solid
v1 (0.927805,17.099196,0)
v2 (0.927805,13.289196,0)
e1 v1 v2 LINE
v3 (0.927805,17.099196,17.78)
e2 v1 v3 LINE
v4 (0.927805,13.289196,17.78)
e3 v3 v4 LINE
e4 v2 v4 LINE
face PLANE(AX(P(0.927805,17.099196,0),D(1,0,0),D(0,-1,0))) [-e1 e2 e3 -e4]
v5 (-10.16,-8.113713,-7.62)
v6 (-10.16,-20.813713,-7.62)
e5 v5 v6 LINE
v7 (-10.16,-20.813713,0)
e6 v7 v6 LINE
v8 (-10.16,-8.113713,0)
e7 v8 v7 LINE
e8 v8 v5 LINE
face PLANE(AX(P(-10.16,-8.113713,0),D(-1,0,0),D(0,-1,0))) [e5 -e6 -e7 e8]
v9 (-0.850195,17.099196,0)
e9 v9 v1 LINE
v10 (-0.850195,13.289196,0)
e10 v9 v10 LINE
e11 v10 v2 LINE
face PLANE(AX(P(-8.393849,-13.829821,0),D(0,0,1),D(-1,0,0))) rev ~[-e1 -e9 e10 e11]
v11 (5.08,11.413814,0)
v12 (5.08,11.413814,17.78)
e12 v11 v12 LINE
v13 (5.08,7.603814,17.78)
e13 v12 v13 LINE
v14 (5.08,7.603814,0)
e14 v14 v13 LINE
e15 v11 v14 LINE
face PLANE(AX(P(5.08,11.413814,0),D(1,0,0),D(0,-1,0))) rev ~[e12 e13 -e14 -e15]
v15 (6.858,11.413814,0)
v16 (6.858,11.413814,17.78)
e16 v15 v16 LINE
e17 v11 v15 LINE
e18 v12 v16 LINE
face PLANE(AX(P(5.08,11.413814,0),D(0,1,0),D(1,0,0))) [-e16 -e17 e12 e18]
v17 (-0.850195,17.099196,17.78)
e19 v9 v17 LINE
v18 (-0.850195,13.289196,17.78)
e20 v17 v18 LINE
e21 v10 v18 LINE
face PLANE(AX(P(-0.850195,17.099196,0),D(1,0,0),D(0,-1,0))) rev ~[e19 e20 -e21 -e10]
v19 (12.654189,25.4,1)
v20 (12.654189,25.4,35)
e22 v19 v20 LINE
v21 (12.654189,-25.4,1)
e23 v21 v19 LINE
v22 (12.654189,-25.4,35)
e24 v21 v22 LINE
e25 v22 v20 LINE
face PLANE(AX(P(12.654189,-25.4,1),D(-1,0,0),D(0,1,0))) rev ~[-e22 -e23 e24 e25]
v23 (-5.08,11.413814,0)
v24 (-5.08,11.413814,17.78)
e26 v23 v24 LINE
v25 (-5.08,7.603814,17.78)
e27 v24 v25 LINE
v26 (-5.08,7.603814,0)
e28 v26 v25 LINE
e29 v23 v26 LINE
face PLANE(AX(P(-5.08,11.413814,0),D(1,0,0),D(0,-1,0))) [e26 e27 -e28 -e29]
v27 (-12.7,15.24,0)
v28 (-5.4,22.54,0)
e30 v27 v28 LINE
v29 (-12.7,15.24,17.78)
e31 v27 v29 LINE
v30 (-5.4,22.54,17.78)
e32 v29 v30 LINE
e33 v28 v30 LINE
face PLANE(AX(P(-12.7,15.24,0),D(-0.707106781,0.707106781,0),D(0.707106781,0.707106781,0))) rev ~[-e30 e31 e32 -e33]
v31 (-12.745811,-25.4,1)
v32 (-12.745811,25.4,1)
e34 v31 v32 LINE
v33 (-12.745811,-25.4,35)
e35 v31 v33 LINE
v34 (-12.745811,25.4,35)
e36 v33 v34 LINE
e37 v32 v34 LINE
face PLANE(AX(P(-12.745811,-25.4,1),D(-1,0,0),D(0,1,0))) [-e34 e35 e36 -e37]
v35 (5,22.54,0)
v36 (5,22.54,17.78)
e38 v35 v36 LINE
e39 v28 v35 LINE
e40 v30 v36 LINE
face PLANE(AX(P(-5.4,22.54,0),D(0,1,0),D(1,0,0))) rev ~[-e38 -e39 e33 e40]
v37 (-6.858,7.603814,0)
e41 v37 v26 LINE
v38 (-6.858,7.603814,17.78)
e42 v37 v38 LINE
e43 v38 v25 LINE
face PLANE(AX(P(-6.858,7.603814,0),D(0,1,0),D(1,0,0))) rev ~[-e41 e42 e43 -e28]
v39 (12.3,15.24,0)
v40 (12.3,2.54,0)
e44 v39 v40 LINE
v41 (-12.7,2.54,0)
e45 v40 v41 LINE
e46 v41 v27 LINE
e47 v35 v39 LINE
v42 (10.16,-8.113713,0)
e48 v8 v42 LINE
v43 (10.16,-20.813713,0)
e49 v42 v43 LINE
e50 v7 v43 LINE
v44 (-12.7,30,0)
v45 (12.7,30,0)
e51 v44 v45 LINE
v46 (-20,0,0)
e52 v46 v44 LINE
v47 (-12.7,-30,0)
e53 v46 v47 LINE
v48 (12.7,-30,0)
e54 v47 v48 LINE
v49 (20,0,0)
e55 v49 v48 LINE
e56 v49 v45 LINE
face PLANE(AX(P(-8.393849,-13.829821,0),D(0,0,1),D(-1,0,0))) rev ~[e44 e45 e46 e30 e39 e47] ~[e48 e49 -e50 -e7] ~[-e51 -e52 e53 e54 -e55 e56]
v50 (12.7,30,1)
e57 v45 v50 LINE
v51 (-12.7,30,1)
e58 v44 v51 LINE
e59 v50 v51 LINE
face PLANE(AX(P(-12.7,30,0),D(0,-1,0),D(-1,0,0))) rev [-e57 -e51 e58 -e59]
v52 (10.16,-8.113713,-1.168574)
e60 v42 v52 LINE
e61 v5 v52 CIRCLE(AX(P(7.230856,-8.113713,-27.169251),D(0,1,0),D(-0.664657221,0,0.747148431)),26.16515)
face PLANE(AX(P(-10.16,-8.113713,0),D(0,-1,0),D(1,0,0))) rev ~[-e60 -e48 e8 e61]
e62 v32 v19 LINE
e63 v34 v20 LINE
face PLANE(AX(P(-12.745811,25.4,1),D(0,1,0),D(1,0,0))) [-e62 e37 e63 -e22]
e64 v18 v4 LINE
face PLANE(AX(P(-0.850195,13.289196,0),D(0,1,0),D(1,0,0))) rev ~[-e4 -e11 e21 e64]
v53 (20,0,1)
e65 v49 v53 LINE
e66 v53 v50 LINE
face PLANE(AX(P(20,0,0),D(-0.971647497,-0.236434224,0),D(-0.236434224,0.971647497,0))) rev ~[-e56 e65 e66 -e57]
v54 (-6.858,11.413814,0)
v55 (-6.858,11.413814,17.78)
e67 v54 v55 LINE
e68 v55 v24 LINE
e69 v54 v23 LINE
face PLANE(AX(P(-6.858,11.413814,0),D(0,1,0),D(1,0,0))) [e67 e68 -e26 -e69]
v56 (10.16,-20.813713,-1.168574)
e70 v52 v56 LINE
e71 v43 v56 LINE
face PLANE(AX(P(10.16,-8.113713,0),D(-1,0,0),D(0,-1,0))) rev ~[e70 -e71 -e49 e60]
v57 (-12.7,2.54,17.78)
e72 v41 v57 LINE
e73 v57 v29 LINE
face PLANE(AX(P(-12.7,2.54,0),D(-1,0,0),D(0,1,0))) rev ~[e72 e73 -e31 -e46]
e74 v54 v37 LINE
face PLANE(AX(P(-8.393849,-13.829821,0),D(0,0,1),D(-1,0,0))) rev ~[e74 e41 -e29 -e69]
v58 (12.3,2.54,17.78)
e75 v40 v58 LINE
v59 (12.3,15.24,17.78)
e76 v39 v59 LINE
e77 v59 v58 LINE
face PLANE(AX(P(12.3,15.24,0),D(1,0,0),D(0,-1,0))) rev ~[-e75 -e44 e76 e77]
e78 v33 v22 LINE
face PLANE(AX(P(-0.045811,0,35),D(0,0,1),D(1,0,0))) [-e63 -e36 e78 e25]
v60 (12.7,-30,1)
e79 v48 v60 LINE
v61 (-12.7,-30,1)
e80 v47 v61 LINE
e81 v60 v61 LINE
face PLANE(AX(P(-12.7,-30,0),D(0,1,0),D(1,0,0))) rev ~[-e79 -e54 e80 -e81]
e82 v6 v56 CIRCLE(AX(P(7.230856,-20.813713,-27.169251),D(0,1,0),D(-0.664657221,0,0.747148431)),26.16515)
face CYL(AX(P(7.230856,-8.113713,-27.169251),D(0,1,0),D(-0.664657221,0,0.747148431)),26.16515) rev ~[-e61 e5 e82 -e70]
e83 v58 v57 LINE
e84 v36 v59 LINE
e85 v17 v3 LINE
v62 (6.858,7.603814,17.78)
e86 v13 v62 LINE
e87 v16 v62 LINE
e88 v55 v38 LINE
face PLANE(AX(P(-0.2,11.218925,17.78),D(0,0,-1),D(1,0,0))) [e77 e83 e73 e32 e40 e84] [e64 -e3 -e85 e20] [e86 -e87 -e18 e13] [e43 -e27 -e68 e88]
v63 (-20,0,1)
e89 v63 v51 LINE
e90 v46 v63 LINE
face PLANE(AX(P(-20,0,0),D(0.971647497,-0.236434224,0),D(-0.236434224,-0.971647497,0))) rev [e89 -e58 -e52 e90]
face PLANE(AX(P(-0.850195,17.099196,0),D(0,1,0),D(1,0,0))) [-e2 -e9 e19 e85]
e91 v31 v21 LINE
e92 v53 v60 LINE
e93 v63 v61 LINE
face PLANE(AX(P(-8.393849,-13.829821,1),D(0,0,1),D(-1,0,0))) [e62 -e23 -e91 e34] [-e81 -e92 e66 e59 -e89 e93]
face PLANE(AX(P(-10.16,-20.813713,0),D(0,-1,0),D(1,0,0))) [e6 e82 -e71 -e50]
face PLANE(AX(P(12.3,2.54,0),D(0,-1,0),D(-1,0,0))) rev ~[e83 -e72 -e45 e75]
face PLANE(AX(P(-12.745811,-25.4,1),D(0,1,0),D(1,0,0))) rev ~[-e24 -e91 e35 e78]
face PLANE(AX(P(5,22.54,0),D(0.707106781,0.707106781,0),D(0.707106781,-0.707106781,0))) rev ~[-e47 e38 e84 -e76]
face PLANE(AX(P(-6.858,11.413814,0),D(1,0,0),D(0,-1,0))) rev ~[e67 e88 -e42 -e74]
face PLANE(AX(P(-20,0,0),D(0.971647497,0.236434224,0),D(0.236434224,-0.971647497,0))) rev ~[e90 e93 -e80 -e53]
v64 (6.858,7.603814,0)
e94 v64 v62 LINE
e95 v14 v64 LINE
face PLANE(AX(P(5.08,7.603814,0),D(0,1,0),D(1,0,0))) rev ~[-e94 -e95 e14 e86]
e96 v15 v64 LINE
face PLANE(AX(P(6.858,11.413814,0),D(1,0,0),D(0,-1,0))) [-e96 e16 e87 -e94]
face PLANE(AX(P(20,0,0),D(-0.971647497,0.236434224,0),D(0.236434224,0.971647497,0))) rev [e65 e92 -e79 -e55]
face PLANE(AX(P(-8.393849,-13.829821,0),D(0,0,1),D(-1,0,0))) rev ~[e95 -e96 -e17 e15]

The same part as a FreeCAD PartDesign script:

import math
import FreeCAD as App
import Part
import Sketcher
from FreeCAD import Vector
Q = App.Units.Quantity

doc = App.newDocument("Part")
body = doc.addObject("PartDesign::Body", "Body")

sketch1 = body.newObject("Sketcher::SketchObject", "Sketch")
sketch1.AttachmentSupport = (doc.getObject("XY_Plane"), [""])
sketch1.MapMode = "FlatFace"
sketch1.addGeometry(Part.LineSegment(Vector(12.7, 30, 0), Vector(0, 30, 0)), False)
sketch1.addGeometry(Part.LineSegment(Vector(0, 30, 0), Vector(0, 0, 0)), False)
sketch1.addGeometry(Part.LineSegment(Vector(0, 0, 0), Vector(20, 0, 0)), False)
sketch1.addGeometry(Part.LineSegment(Vector(20, 0, 0), Vector(12.7, 30, 0)), False)
sketch1.addConstraint(Sketcher.Constraint("Coincident", 0, 2, 1, 1))
sketch1.addConstraint(Sketcher.Constraint("Coincident", 1, 2, 2, 1))
sketch1.addConstraint(Sketcher.Constraint("Coincident", 2, 2, 3, 1))
sketch1.addConstraint(Sketcher.Constraint("Coincident", 3, 2, 0, 1))
sketch1.addConstraint(Sketcher.Constraint("Horizontal", 0))
sketch1.addConstraint(Sketcher.Constraint("Vertical", 1))
sketch1.addConstraint(Sketcher.Constraint("Horizontal", 2))
sketch1.addConstraint(Sketcher.Constraint("Coincident", 1, 2, -1, 1))
sketch1.addConstraint(Sketcher.Constraint("DistanceX", 0, 2, 0, 1, Q("0.5 in")))
sketch1.addConstraint(Sketcher.Constraint("DistanceX", 2, 1, 2, 2, Q("20 mm")))
sketch1.addConstraint(Sketcher.Constraint("DistanceY", 1, 2, 1, 1, Q("30 mm")))
pad1 = body.newObject("PartDesign::Pad", "Pad")
pad1.Profile = sketch1
pad1.Length = 1
body2 = doc.addObject("PartDesign::Body", "Body001")
doc.recompute()

body2.BaseFeature = body
doc.recompute()

mirroring = doc.addObject("Part::Mirroring", "Mirroring")
mirroring.Source = body
mirroring.Base = Vector(0, 0, 0)
mirroring.Normal = Vector(0, -1, 0)
body3 = doc.addObject("PartDesign::Body", "Body002")
body3.BaseFeature = mirroring
boolean = body2.newObject("PartDesign::Boolean", "Boolean")
boolean.Type = "Fuse"
boolean.addObjects([body3])
doc.recompute()
body4 = doc.addObject("PartDesign::Body", "Body003")
doc.recompute()

body4.BaseFeature = body2
doc.recompute()

mirroring2 = doc.addObject("Part::Mirroring", "Mirroring001")
mirroring2.Source = body2
mirroring2.Base = Vector(0, 0, 0)
mirroring2.Normal = Vector(1, 0, 0)
body5 = doc.addObject("PartDesign::Body", "Body004")
body5.BaseFeature = mirroring2
boolean2 = body4.newObject("PartDesign::Boolean", "Boolean001")
boolean2.Type = "Fuse"
boolean2.addObjects([body5])
doc.recompute()

sketch2 = body4.newObject("Sketcher::SketchObject", "Sketch001")
sketch2.AttachmentSupport = (doc.getObject("XY_Plane003"), [""])
sketch2.MapMode = "FlatFace"
sketch2.AttachmentOffset = App.Placement(Vector(0, 0, 1), App.Rotation())
sketch2.addGeometry(Part.LineSegment(Vector(-12.745811, 25.4, 0), Vector(-12.745811, -25.4, 0)), False)
sketch2.addGeometry(Part.LineSegment(Vector(-12.745811, -25.4, 0), Vector(12.654189, -25.4, 0)), False)
sketch2.addGeometry(Part.LineSegment(Vector(12.654189, -25.4, 0), Vector(12.654189, 25.4, 0)), False)
sketch2.addGeometry(Part.LineSegment(Vector(12.654189, 25.4, 0), Vector(-12.745811, 25.4, 0)), False)
sketch2.addConstraint(Sketcher.Constraint("Coincident", 0, 2, 1, 1))
sketch2.addConstraint(Sketcher.Constraint("Coincident", 1, 2, 2, 1))
sketch2.addConstraint(Sketcher.Constraint("Coincident", 2, 2, 3, 1))
sketch2.addConstraint(Sketcher.Constraint("Coincident", 3, 2, 0, 1))
sketch2.addConstraint(Sketcher.Constraint("Vertical", 0))
sketch2.addConstraint(Sketcher.Constraint("Horizontal", 1))
sketch2.addConstraint(Sketcher.Constraint("Vertical", 2))
sketch2.addConstraint(Sketcher.Constraint("Horizontal", 3))
sketch2.addConstraint(Sketcher.Constraint("DistanceX", 1, 1, 1, 2, Q("1 in")))
sketch2.addConstraint(Sketcher.Constraint("DistanceY", 0, 2, 0, 1, Q("2 in")))
sketch2.addConstraint(Sketcher.Constraint("DistanceY", 0, 2, -1, 1, Q("1 in")))
sketch2.addConstraint(Sketcher.Constraint("DistanceX", 0, 2, -1, 1, Q("12.745811 mm")))
pad2 = body4.newObject("PartDesign::Pad", "Pad001")
pad2.Profile = sketch2
pad2.Length = 34

sketch3 = body4.newObject("Sketcher::SketchObject", "Sketch002")
sketch3.AttachmentSupport = (doc.getObject("XY_Plane003"), [""])
sketch3.MapMode = "FlatFace"
sketch3.addGeometry(Part.LineSegment(Vector(-5.4, 22.54, 0), Vector(5, 22.54, 0)), False)
sketch3.addGeometry(Part.LineSegment(Vector(5, 22.54, 0), Vector(12.3, 15.24, 0)), False)
sketch3.addGeometry(Part.LineSegment(Vector(12.3, 15.24, 0), Vector(12.3, 2.54, 0)), False)
sketch3.addGeometry(Part.LineSegment(Vector(12.3, 2.54, 0), Vector(-12.7, 2.54, 0)), False)
sketch3.addGeometry(Part.LineSegment(Vector(-12.7, 2.54, 0), Vector(-12.7, 15.24, 0)), False)
sketch3.addGeometry(Part.LineSegment(Vector(-12.7, 15.24, 0), Vector(-5.4, 22.54, 0)), False)
sketch3.addGeometry(Part.LineSegment(Vector(0.927805, 17.099196, 0), Vector(-0.850195, 17.099196, 0)), False)
sketch3.addGeometry(Part.LineSegment(Vector(-0.850195, 17.099196, 0), Vector(-0.850195, 13.289196, 0)), False)
sketch3.addGeometry(Part.LineSegment(Vector(-0.850195, 13.289196, 0), Vector(0.927805, 13.289196, 0)), False)
sketch3.addGeometry(Part.LineSegment(Vector(0.927805, 13.289196, 0), Vector(0.927805, 17.099196, 0)), False)
sketch3.addGeometry(Part.LineSegment(Vector(-5.08, 11.413814, 0), Vector(-6.858, 11.413814, 0)), False)
sketch3.addGeometry(Part.LineSegment(Vector(-6.858, 11.413814, 0), Vector(-6.858, 7.603814, 0)), False)
sketch3.addGeometry(Part.LineSegment(Vector(-6.858, 7.603814, 0), Vector(-5.08, 7.603814, 0)), False)
sketch3.addGeometry(Part.LineSegment(Vector(-5.08, 7.603814, 0), Vector(-5.08, 11.413814, 0)), False)
sketch3.addGeometry(Part.LineSegment(Vector(6.858, 11.413814, 0), Vector(5.08, 11.413814, 0)), False)
sketch3.addGeometry(Part.LineSegment(Vector(5.08, 11.413814, 0), Vector(5.08, 7.603814, 0)), False)
sketch3.addGeometry(Part.LineSegment(Vector(5.08, 7.603814, 0), Vector(6.858, 7.603814, 0)), False)
sketch3.addGeometry(Part.LineSegment(Vector(6.858, 7.603814, 0), Vector(6.858, 11.413814, 0)), False)
sketch3.addConstraint(Sketcher.Constraint("Coincident", 0, 2, 1, 1))
sketch3.addConstraint(Sketcher.Constraint("Coincident", 1, 2, 2, 1))
sketch3.addConstraint(Sketcher.Constraint("Coincident", 2, 2, 3, 1))
sketch3.addConstraint(Sketcher.Constraint("Coincident", 3, 2, 4, 1))
sketch3.addConstraint(Sketcher.Constraint("Coincident", 4, 2, 5, 1))
sketch3.addConstraint(Sketcher.Constraint("Coincident", 5, 2, 0, 1))
sketch3.addConstraint(Sketcher.Constraint("Coincident", 6, 2, 7, 1))
sketch3.addConstraint(Sketcher.Constraint("Coincident", 7, 2, 8, 1))
sketch3.addConstraint(Sketcher.Constraint("Coincident", 8, 2, 9, 1))
sketch3.addConstraint(Sketcher.Constraint("Coincident", 9, 2, 6, 1))
sketch3.addConstraint(Sketcher.Constraint("Coincident", 10, 2, 11, 1))
sketch3.addConstraint(Sketcher.Constraint("Coincident", 11, 2, 12, 1))
sketch3.addConstraint(Sketcher.Constraint("Coincident", 12, 2, 13, 1))
sketch3.addConstraint(Sketcher.Constraint("Coincident", 13, 2, 10, 1))
sketch3.addConstraint(Sketcher.Constraint("Coincident", 14, 2, 15, 1))
sketch3.addConstraint(Sketcher.Constraint("Coincident", 15, 2, 16, 1))
sketch3.addConstraint(Sketcher.Constraint("Coincident", 16, 2, 17, 1))
sketch3.addConstraint(Sketcher.Constraint("Coincident", 17, 2, 14, 1))
sketch3.addConstraint(Sketcher.Constraint("Horizontal", 0))
sketch3.addConstraint(Sketcher.Constraint("Vertical", 2))
sketch3.addConstraint(Sketcher.Constraint("Horizontal", 3))
sketch3.addConstraint(Sketcher.Constraint("Vertical", 4))
sketch3.addConstraint(Sketcher.Constraint("Horizontal", 6))
sketch3.addConstraint(Sketcher.Constraint("Vertical", 7))
sketch3.addConstraint(Sketcher.Constraint("Horizontal", 8))
sketch3.addConstraint(Sketcher.Constraint("Vertical", 9))
sketch3.addConstraint(Sketcher.Constraint("Horizontal", 10))
sketch3.addConstraint(Sketcher.Constraint("Vertical", 11))
sketch3.addConstraint(Sketcher.Constraint("Horizontal", 12))
sketch3.addConstraint(Sketcher.Constraint("Vertical", 13))
sketch3.addConstraint(Sketcher.Constraint("Horizontal", 14))
sketch3.addConstraint(Sketcher.Constraint("Vertical", 15))
sketch3.addConstraint(Sketcher.Constraint("Horizontal", 16))
sketch3.addConstraint(Sketcher.Constraint("Vertical", 17))
sketch3.addConstraint(Sketcher.Constraint("Symmetric", 13, 2, 14, 2, -2))
sketch3.addConstraint(Sketcher.Constraint("Symmetric", 11, 2, 16, 2, -2))
sketch3.addConstraint(Sketcher.Constraint("Perpendicular", 1, 5))
sketch3.addConstraint(Sketcher.Constraint("Horizontal", 1, 2, 4, 2))
sketch3.addConstraint(Sketcher.Constraint("Equal", 8, 10))
sketch3.addConstraint(Sketcher.Constraint("Equal", 9, 11))
sketch3.addConstraint(Sketcher.Constraint("Equal", 1, 5))
sketch3.addConstraint(Sketcher.Constraint("DistanceY", 2, 2, 2, 1, Q("0.5 in")))
sketch3.addConstraint(Sketcher.Constraint("DistanceX", 6, 2, 6, 1, Q("0.07 in")))
sketch3.addConstraint(Sketcher.Constraint("DistanceY", 7, 2, 7, 1, Q("0.15 in")))
sketch3.addConstraint(Sketcher.Constraint("DistanceY", -1, 1, 1, 2, Q("0.6 in")))
sketch3.addConstraint(Sketcher.Constraint("DistanceX", 3, 2, -1, 1, Q("0.5 in")))
sketch3.addConstraint(Sketcher.Constraint("DistanceX", 12, 2, -1, 1, Q("0.2 in")))
sketch3.addConstraint(Sketcher.Constraint("DistanceX", 0, 1, 0, 2, Q("10.4 mm")))
sketch3.addConstraint(Sketcher.Constraint("DistanceX", 3, 2, 3, 1, Q("25 mm")))
sketch3.addConstraint(Sketcher.Constraint("DistanceY", 10, 2, 6, 2, Q("5.685382 mm")))
sketch3.addConstraint(Sketcher.Constraint("DistanceX", 6, 2, -1, 1, Q("0.850195 mm")))
sketch3.addConstraint(Sketcher.Constraint("DistanceY", -1, 1, 6, 2, Q("17.099196 mm")))
pocket1 = body4.newObject("PartDesign::Pocket", "Pocket")
pocket1.Profile = sketch3
pocket1.Length = Q("0.7 in")
pocket1.Reversed = True

sketch4 = body4.newObject("Sketcher::SketchObject", "Sketch003")
sketch4.AttachmentSupport = (doc.getObject("XY_Plane003"), [""])
sketch4.MapMode = "FlatFace"
sketch4.addGeometry(Part.LineSegment(Vector(-10.16, -20.813713, 0), Vector(-10.16, -8.113713, 0)), False)
sketch4.addGeometry(Part.LineSegment(Vector(-10.16, -8.113713, 0), Vector(10.16, -8.113713, 0)), False)
sketch4.addGeometry(Part.LineSegment(Vector(10.16, -8.113713, 0), Vector(10.16, -20.813713, 0)), False)
sketch4.addGeometry(Part.LineSegment(Vector(10.16, -20.813713, 0), Vector(-10.16, -20.813713, 0)), False)
sketch4.addConstraint(Sketcher.Constraint("Coincident", 0, 2, 1, 1))
sketch4.addConstraint(Sketcher.Constraint("Coincident", 1, 2, 2, 1))
sketch4.addConstraint(Sketcher.Constraint("Coincident", 2, 2, 3, 1))
sketch4.addConstraint(Sketcher.Constraint("Coincident", 3, 2, 0, 1))
sketch4.addConstraint(Sketcher.Constraint("Vertical", 0))
sketch4.addConstraint(Sketcher.Constraint("Horizontal", 1))
sketch4.addConstraint(Sketcher.Constraint("Vertical", 2))
sketch4.addConstraint(Sketcher.Constraint("Horizontal", 3))
sketch4.addConstraint(Sketcher.Constraint("DistanceX", 1, 1, 1, 2, Q("0.8 in")))
sketch4.addConstraint(Sketcher.Constraint("DistanceY", 0, 1, 0, 2, Q("0.5 in")))
sketch4.addConstraint(Sketcher.Constraint("DistanceX", 0, 2, -1, 1, Q("0.4 in")))
sketch4.addConstraint(Sketcher.Constraint("DistanceY", 0, 2, -1, 1, Q("8.113713 mm")))
pad3 = body4.newObject("PartDesign::Pad", "Pad002")
pad3.Profile = sketch4
pad3.Length = Q("0.3 in")
pad3.Reversed = True

sketch5 = body4.newObject("Sketcher::SketchObject", "Sketch004")
sketch5.AttachmentSupport = (doc.getObject("XZ_Plane003"), [""])
sketch5.MapMode = "FlatFace"
sketch5.AttachmentOffset = App.Placement(Vector(0, 0, 8.113713), App.Rotation())
sketch5.addGeometry(Part.LineSegment(Vector(10.16, -1.168574, 0), Vector(10.16, -7.62, 0)), False)
sketch5.addGeometry(Part.LineSegment(Vector(10.16, -7.62, 0), Vector(-10.16, -7.62, 0)), False)
sketch5.addGeometry(Part.ArcOfCircle(Part.Circle(Vector(7.230856, -27.169251, 0), Vector(0, 0, 1), 26.16515), math.radians(83.572361), math.radians(131.656034)), False)
sketch5.addConstraint(Sketcher.Constraint("Coincident", 0, 2, 1, 1))
sketch5.addConstraint(Sketcher.Constraint("Coincident", 1, 2, 2, 2))
sketch5.addConstraint(Sketcher.Constraint("Coincident", 2, 1, 0, 1))
sketch5.addConstraint(Sketcher.Constraint("Vertical", 0))
sketch5.addConstraint(Sketcher.Constraint("Horizontal", 1))
sketch5.addConstraint(Sketcher.Constraint("DistanceX", 1, 2, 1, 1, Q("0.8 in")))
sketch5.addConstraint(Sketcher.Constraint("DistanceX", -1, 1, 0, 2, Q("0.4 in")))
sketch5.addConstraint(Sketcher.Constraint("DistanceY", 0, 2, -1, 1, Q("0.3 in")))
sketch5.addConstraint(Sketcher.Constraint("Radius", 2, Q("26.16515 mm")))
sketch5.addConstraint(Sketcher.Constraint("DistanceY", 0, 2, 0, 1, Q("6.451426 mm")))
pocket2 = body4.newObject("PartDesign::Pocket", "Pocket001")
pocket2.Profile = sketch5
pocket2.Length = Q("1 in")
pocket2.Reversed = True
mirroring.Visibility = False
mirroring2.Visibility = False

doc.recompute()
